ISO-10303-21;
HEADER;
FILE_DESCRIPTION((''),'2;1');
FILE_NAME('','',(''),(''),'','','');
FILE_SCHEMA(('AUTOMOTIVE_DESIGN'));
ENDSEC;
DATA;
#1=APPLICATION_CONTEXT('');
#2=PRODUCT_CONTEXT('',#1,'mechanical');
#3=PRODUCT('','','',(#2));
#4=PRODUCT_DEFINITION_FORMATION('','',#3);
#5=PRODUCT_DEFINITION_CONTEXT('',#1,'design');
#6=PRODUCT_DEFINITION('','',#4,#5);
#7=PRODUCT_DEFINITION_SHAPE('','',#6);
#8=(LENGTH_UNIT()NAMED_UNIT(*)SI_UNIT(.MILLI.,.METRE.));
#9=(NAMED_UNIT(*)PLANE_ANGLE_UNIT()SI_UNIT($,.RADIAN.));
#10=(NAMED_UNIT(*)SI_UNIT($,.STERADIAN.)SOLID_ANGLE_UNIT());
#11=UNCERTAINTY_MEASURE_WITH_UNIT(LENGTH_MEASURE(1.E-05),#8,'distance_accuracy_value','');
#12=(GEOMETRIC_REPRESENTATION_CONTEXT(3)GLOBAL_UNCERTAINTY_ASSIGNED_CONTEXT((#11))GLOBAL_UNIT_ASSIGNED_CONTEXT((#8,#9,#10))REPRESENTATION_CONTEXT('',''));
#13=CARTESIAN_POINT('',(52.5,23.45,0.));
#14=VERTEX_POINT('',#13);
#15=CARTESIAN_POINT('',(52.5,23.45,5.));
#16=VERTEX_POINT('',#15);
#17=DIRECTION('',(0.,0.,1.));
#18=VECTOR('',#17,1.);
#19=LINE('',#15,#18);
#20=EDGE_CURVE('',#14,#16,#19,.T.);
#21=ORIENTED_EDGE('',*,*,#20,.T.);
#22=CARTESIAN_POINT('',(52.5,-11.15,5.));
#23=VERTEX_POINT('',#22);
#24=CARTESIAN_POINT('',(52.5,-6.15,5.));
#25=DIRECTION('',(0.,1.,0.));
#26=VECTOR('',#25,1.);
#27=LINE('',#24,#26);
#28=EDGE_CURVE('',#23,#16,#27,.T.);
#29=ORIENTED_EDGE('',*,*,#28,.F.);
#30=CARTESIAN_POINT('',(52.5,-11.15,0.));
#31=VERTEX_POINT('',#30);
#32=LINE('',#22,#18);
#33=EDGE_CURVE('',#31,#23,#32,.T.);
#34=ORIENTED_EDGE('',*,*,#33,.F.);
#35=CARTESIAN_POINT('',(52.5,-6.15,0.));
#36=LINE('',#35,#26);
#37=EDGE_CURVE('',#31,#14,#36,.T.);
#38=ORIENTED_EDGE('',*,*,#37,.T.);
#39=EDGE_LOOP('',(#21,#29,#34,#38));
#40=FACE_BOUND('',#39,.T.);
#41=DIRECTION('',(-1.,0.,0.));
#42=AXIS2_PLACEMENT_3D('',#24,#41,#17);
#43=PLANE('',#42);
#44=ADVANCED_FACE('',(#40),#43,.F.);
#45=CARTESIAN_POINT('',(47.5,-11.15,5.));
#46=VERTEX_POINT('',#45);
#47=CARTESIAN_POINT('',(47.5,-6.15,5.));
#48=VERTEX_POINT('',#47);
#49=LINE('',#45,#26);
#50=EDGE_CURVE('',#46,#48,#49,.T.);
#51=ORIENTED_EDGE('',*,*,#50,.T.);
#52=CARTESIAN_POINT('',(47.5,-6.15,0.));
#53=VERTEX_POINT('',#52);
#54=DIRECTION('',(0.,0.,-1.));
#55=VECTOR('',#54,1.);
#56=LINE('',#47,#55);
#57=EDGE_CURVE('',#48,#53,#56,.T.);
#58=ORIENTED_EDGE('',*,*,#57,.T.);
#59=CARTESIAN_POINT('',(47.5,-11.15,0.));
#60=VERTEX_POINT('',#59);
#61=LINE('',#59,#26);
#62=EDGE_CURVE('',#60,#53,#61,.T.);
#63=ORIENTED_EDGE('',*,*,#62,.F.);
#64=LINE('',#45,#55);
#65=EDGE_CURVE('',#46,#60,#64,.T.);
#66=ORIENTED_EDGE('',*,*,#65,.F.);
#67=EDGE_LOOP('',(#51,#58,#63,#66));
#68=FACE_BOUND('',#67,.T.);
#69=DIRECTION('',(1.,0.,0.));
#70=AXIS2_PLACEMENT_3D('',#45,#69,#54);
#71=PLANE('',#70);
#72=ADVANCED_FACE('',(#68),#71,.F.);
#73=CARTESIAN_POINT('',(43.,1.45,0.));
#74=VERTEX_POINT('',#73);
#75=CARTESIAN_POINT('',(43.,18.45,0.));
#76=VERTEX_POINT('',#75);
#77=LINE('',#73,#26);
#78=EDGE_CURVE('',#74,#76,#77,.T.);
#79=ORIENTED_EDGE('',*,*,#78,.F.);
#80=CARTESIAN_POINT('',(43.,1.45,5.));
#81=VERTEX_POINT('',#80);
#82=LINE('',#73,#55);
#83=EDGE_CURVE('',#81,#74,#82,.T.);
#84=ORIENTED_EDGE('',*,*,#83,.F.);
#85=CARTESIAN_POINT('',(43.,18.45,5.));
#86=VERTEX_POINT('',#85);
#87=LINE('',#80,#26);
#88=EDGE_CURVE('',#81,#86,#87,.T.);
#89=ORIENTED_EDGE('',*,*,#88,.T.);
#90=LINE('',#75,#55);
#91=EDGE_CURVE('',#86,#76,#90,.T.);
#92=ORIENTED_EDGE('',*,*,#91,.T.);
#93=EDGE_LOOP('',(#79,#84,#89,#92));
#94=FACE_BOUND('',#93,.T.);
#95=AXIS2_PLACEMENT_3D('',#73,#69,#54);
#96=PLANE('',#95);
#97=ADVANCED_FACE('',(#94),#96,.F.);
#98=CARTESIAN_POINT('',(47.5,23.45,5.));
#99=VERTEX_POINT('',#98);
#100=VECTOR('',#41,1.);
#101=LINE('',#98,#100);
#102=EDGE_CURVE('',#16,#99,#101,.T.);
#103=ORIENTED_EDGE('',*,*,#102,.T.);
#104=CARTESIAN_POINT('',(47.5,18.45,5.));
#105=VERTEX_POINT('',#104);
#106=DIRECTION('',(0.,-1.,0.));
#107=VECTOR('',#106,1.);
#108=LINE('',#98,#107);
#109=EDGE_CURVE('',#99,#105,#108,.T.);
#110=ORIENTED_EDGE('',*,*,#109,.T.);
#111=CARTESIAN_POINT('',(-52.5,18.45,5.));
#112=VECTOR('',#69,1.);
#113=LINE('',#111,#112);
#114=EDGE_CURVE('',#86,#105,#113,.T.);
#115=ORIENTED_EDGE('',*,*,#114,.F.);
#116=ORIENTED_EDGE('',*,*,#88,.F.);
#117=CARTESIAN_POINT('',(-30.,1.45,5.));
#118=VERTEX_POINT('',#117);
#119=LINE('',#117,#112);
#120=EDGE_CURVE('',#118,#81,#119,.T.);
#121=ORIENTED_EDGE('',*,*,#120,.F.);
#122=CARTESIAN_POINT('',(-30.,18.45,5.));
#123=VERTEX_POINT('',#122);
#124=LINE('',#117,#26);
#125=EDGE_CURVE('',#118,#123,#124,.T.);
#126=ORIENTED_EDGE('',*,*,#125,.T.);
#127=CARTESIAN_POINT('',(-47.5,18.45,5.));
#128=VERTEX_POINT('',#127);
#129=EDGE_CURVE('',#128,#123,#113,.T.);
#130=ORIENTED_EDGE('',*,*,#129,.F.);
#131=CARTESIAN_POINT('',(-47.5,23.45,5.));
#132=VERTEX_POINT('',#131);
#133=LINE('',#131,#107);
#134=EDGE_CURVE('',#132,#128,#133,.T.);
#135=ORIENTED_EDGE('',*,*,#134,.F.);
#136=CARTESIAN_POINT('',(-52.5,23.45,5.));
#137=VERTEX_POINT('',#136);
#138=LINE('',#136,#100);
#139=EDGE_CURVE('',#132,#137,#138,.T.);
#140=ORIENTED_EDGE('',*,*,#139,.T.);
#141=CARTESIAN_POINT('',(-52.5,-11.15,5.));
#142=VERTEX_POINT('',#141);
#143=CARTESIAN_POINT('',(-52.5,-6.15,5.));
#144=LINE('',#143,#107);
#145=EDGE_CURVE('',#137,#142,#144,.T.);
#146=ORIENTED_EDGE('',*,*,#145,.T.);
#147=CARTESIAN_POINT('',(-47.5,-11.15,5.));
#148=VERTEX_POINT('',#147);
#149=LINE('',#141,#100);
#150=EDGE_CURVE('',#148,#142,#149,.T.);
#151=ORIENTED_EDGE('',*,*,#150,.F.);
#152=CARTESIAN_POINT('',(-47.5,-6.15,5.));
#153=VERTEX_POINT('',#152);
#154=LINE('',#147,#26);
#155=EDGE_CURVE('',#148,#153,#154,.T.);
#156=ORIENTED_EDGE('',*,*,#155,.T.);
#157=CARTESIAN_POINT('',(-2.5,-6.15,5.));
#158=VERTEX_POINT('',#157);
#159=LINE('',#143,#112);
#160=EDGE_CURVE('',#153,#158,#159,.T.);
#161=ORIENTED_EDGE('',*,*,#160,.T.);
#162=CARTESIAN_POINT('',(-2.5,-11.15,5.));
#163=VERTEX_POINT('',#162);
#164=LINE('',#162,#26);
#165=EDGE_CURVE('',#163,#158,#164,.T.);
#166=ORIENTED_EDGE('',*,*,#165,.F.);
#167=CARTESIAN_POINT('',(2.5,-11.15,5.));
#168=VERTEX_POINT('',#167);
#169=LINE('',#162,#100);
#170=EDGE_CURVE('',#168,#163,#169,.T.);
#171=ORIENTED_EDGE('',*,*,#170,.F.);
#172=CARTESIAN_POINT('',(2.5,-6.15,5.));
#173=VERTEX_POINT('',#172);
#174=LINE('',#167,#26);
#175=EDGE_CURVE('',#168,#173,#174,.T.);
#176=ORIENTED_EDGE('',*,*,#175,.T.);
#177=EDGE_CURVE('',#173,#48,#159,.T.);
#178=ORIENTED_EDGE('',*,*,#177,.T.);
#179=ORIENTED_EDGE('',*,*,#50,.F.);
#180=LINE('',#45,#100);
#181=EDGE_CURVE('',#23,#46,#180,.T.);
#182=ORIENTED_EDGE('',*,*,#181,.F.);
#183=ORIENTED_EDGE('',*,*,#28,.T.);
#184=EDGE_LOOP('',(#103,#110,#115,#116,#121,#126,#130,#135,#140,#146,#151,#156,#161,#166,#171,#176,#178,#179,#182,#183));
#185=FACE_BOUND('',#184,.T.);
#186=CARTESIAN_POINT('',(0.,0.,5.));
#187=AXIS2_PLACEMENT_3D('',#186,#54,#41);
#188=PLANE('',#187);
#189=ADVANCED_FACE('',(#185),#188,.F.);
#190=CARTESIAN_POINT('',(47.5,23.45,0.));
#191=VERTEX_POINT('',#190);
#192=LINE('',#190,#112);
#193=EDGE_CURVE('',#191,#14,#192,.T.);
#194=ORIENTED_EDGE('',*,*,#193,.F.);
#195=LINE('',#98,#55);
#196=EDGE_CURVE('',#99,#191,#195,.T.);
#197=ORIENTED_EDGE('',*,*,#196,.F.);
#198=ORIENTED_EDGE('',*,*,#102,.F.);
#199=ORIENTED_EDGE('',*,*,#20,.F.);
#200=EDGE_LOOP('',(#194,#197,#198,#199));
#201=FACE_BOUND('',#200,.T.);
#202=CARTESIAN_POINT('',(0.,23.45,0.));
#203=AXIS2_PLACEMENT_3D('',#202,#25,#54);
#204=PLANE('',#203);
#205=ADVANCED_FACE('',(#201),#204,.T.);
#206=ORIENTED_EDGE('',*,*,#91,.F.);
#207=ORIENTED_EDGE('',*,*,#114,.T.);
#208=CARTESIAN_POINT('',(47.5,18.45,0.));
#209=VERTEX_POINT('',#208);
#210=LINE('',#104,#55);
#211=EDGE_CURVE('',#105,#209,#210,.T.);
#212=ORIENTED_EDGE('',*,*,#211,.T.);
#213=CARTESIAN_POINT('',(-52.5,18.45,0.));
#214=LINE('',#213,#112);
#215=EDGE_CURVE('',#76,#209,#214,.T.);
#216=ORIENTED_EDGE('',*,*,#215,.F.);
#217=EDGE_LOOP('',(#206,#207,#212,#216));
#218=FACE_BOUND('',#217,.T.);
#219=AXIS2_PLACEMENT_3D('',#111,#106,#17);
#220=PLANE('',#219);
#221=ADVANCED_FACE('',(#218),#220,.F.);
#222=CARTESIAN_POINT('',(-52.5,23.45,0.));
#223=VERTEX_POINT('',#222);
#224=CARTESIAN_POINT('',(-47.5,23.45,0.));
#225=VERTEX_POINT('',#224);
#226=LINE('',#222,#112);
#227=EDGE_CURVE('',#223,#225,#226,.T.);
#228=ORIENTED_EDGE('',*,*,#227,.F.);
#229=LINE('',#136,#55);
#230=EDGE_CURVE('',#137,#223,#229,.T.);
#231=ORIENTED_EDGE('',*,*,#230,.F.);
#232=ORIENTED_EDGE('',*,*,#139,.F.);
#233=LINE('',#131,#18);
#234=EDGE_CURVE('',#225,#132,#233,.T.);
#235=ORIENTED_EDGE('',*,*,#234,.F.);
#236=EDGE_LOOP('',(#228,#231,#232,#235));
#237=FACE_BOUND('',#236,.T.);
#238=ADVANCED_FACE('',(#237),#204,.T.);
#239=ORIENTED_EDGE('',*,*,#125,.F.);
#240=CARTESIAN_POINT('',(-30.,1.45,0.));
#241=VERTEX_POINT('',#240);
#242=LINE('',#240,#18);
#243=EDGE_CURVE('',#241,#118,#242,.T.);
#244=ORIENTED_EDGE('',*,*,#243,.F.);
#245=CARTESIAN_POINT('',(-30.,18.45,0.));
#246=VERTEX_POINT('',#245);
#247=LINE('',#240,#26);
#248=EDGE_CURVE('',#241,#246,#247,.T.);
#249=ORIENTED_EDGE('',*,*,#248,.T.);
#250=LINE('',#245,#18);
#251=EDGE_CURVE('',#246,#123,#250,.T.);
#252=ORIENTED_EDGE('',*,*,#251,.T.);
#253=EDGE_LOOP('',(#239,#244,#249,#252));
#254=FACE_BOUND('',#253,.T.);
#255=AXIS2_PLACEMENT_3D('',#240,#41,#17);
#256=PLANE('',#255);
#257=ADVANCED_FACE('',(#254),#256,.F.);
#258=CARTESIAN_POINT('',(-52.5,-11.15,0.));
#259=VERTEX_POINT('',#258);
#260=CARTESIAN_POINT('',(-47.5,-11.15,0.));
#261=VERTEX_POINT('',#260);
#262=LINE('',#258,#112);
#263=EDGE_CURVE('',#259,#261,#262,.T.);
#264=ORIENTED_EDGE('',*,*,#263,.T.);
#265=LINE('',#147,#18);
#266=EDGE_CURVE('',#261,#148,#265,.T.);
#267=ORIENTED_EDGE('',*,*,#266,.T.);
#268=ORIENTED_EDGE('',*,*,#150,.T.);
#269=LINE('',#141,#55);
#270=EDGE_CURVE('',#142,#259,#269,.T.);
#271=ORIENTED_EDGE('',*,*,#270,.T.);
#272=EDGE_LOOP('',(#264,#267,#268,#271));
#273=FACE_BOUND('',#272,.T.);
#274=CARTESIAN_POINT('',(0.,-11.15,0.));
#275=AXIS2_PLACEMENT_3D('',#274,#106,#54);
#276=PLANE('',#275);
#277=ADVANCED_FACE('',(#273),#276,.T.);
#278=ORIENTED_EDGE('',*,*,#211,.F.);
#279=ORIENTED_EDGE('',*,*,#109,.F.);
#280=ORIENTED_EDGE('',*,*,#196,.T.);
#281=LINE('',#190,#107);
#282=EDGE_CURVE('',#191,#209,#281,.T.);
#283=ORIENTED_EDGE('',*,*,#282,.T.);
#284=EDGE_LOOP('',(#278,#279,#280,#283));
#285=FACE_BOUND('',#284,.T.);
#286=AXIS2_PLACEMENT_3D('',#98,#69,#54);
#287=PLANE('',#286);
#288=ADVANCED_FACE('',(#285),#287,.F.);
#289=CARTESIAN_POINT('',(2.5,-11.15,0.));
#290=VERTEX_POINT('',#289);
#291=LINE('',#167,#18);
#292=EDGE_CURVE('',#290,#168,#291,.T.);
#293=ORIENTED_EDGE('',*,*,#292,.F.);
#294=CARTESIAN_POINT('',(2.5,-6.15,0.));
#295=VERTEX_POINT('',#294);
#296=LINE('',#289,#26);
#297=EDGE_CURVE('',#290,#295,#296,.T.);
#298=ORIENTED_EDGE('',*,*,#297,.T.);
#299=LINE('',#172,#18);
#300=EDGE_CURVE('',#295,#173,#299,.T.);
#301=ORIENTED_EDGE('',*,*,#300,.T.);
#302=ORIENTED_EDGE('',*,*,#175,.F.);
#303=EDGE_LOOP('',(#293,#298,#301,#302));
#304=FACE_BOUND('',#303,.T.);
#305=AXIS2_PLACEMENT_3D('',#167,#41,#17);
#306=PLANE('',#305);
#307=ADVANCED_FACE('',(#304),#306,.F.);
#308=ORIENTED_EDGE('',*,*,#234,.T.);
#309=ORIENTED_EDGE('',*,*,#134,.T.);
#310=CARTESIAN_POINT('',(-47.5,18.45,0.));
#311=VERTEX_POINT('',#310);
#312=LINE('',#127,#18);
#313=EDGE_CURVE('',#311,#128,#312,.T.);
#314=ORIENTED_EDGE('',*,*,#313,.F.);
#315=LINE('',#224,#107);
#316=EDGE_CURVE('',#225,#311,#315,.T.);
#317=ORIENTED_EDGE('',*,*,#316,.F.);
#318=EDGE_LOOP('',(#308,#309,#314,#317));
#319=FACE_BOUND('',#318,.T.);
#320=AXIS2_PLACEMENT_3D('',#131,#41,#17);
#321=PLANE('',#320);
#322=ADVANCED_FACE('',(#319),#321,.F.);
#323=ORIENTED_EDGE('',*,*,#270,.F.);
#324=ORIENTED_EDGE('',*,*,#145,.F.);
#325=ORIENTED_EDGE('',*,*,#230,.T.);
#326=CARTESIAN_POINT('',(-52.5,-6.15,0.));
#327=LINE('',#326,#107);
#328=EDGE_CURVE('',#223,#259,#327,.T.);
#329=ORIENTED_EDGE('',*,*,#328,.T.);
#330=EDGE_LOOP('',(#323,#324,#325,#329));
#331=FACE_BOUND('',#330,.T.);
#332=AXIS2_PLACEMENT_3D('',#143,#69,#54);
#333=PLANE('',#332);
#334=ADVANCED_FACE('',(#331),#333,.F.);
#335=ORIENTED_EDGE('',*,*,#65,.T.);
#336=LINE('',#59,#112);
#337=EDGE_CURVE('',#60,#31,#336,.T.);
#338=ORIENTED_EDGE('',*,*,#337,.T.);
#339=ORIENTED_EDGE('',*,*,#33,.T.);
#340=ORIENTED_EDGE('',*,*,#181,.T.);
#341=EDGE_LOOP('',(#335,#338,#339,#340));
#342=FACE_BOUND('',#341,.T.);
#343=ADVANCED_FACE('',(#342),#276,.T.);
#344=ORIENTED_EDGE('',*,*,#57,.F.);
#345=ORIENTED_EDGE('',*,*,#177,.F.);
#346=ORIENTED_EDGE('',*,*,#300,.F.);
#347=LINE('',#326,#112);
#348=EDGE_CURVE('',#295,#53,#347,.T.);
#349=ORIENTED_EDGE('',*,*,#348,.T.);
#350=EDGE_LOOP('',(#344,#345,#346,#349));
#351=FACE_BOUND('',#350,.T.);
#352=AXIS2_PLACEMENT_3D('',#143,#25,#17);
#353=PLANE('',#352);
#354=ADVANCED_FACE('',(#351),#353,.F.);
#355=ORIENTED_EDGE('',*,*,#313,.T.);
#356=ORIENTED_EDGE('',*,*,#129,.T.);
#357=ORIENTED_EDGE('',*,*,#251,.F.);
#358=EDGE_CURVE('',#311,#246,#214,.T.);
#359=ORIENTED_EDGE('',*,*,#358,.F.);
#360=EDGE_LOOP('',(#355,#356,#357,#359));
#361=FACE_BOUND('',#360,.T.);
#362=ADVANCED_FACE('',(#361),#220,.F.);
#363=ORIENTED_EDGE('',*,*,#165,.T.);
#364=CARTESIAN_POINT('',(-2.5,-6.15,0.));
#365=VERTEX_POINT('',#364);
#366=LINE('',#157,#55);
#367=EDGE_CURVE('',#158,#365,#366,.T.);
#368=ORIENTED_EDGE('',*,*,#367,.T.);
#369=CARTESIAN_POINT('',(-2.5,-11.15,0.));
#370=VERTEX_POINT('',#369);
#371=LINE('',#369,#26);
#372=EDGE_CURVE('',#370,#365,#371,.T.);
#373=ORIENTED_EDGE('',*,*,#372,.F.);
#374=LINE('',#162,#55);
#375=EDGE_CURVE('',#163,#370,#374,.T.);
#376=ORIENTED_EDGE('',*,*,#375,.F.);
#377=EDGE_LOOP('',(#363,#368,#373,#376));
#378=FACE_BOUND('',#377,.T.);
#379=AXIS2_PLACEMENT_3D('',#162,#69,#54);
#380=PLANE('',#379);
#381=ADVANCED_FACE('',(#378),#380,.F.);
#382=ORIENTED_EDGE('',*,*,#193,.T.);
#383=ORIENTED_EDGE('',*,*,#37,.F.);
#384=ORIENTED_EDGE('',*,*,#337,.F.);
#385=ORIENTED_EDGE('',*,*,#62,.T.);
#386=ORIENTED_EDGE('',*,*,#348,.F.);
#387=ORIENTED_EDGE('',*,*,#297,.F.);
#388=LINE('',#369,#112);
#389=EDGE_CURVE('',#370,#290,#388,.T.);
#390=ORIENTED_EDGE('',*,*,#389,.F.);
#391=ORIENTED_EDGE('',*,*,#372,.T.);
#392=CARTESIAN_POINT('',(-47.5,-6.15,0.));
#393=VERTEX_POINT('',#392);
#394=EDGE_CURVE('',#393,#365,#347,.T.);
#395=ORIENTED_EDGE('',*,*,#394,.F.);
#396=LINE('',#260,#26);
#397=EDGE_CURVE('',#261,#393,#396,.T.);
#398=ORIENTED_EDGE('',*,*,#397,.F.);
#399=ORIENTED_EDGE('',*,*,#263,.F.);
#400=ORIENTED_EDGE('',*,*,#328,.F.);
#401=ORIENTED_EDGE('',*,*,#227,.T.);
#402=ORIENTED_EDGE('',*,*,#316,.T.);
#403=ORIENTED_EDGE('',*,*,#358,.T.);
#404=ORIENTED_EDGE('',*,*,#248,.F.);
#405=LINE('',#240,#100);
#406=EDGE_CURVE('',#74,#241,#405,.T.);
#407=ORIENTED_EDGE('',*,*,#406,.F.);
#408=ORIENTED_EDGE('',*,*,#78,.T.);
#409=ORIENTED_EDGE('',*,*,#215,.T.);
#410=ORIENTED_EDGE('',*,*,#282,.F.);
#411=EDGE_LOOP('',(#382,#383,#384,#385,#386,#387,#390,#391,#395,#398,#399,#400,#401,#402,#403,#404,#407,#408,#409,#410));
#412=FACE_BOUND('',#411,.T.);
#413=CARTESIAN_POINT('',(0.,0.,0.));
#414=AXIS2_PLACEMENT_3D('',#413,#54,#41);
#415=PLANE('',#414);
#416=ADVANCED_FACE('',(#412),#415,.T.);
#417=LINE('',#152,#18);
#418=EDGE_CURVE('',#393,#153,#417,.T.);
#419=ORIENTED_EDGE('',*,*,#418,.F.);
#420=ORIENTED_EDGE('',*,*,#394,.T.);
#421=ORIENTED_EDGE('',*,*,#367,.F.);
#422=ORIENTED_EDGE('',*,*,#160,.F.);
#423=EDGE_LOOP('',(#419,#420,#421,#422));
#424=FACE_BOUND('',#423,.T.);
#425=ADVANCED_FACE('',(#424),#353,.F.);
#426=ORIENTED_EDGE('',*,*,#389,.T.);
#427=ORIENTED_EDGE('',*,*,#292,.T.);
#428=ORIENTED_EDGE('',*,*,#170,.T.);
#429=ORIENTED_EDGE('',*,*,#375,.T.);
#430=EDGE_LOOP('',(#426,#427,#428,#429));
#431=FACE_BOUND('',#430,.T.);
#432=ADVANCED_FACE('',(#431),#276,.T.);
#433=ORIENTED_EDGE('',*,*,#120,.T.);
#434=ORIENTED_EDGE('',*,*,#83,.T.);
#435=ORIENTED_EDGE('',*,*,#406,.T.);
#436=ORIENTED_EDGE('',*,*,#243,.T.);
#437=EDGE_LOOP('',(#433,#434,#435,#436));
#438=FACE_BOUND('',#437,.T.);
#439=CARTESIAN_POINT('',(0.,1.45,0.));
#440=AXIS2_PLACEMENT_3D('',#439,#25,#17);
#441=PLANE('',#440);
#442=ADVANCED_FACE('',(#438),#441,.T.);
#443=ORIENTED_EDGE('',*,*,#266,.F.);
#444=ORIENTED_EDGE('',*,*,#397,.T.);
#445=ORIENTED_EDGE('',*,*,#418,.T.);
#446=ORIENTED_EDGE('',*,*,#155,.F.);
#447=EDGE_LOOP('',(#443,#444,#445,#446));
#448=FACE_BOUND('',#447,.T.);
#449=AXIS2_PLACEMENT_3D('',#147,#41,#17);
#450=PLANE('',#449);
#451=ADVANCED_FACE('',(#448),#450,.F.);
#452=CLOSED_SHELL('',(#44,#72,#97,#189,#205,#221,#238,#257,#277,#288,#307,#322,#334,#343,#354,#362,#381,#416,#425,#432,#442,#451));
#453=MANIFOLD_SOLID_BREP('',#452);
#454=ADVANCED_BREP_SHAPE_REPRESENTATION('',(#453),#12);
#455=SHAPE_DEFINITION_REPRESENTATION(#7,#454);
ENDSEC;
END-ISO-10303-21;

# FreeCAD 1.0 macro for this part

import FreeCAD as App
import Part
import Sketcher


def add_polygon(sketch, points):
    """Adds a closed chain of lines whose ends are joined by coincident constraints."""
    first, n = sketch.GeometryCount, len(points)
    for a, b in zip(points, points[1:] + points[:1]):
        sketch.addGeometry(Part.LineSegment(App.Vector(*a, 0), App.Vector(*b, 0)), False)
    for i in range(n):
        sketch.addConstraint(Sketcher.Constraint("Coincident", first + i, 2, first + (i + 1) % n, 1))

doc = App.newDocument("Part")
body = doc.addObject("PartDesign::Body", "Body")

# Sketch on XY plane
sketch1 = body.newObject("Sketcher::SketchObject", "Sketch")
sketch1.AttachmentSupport = (doc.getObject("XY_Plane"), [""])
sketch1.MapMode = "FlatFace"
add_polygon(sketch1, [(-52, 6), (-52, -6), (52, -6), (52, 6)])  # lines 0-3
sketch1.addConstraint([
    Sketcher.Constraint("Vertical", 0),
    Sketcher.Constraint("Horizontal", 1),
    Sketcher.Constraint("Vertical", 2),
    Sketcher.Constraint("Horizontal", 3),
    Sketcher.Constraint("Symmetric", 0, 2, 2, 2, -1, 1),
    Sketcher.Constraint("DistanceX", 1, 1, 1, 2, 105.0),
    Sketcher.Constraint("DistanceY", 0, 2, 0, 1, 12.3),
])
pad1 = body.newObject("PartDesign::Pad", "Pad")
pad1.Profile = sketch1
pad1.Length = 5

# Sketch on XZ plane
sketch2 = body.newObject("Sketcher::SketchObject", "Sketch001")
sketch2.AttachmentSupport = (doc.getObject("XZ_Plane"), [""])
sketch2.MapMode = "FlatFace"
sketch2.AttachmentOffset = App.Placement(App.Vector(0, 0, 6.15), App.Rotation())
add_polygon(sketch2, [(-52, 5), (-52, 0), (-48, 0), (-48, 5)])  # lines 0-3
add_polygon(sketch2, [(48, 5), (48, 0), (52, 0), (52, 5)])  # lines 4-7
sketch2.addConstraint([
    Sketcher.Constraint("Vertical", 0),
    Sketcher.Constraint("Horizontal", 1),
    Sketcher.Constraint("Vertical", 2),
    Sketcher.Constraint("Horizontal", 3),
    Sketcher.Constraint("Vertical", 4),
    Sketcher.Constraint("Horizontal", 5),
    Sketcher.Constraint("Vertical", 6),
    Sketcher.Constraint("Horizontal", 7),
    Sketcher.Constraint("Symmetric", 1, 2, 4, 2, -1, 1),
    Sketcher.Constraint("Symmetric", 0, 2, 5, 2, -2),
    Sketcher.Constraint("Horizontal", 3, 2, 6, 2),
    Sketcher.Constraint("Equal", 7, 0),
    Sketcher.Constraint("DistanceX", 1, 1, 1, 2, 5.0),
    Sketcher.Constraint("DistanceX", 1, 2, 4, 2, 95.0),
])
pad2 = body.newObject("PartDesign::Pad", "Pad001")
pad2.Profile = sketch2
pad2.Length = 5
body2 = doc.addObject("PartDesign::Body", "Body001")
doc.recompute()

body2.BaseFeature = body
doc.recompute()

mirroring = doc.addObject("Part::Mirroring", "Mirroring")
mirroring.Source = body
mirroring.Base = App.Vector(-52.5, 6.15, 5)
mirroring.Normal = App.Vector(0, -1, 0)
body3 = doc.addObject("PartDesign::Body", "Body002")
body3.BaseFeature = mirroring
boolean = body2.newObject("PartDesign::Boolean", "Boolean")
boolean.Type = "Fuse"
boolean.addObjects([body3])
doc.recompute()

# Sketch on XZ plane
sketch3 = body2.newObject("Sketcher::SketchObject", "Sketch002")
sketch3.AttachmentSupport = (doc.getObject("XZ_Plane001"), [""])
sketch3.MapMode = "FlatFace"
sketch3.AttachmentOffset = App.Placement(App.Vector(0, 0, -18.45), App.Rotation())
add_polygon(sketch3, [(-30, 0), (-30, 5), (43, 5), (43, 0)])  # lines 0-3
sketch3.addConstraint([
    Sketcher.Constraint("Vertical", 0),
    Sketcher.Constraint("Horizontal", 1),
    Sketcher.Constraint("Vertical", 2),
    Sketcher.Constraint("Horizontal", 3),
    Sketcher.Constraint("PointOnObject", 2, 2, -1),
    Sketcher.Constraint("DistanceX", 1, 1, 1, 2, 73.0),
    Sketcher.Constraint("DistanceY", 0, 1, 0, 2, 5.0),
    Sketcher.Constraint("DistanceX", 0, 2, -1, 1, 30.0),
])
pocket1 = body2.newObject("PartDesign::Pocket", "Pocket")
pocket1.Profile = sketch3
pocket1.Length = 17
pocket1.Reversed = True

# Sketch on XZ plane
sketch4 = body2.newObject("Sketcher::SketchObject", "Sketch003")
sketch4.AttachmentSupport = (doc.getObject("XZ_Plane001"), [""])
sketch4.MapMode = "FlatFace"
sketch4.AttachmentOffset = App.Placement(App.Vector(0, 0, 6.15), App.Rotation())
add_polygon(sketch4, [(-2, 5), (-2, 0), (2, 0), (2, 5)])  # lines 0-3
sketch4.addConstraint([
    Sketcher.Constraint("Vertical", 0),
    Sketcher.Constraint("Horizontal", 1),
    Sketcher.Constraint("Vertical", 2),
    Sketcher.Constraint("Horizontal", 3),
    Sketcher.Constraint("Symmetric", 0, 2, 1, 2, -1, 1),
    Sketcher.Constraint("Equal", 3, 0),
    Sketcher.Constraint("DistanceX", 1, 1, 1, 2, 5.0),
])
pad3 = body2.newObject("PartDesign::Pad", "Pad002")
pad3.Profile = sketch4
pad3.Length = 5
mirroring.Visibility = False

doc.recompute()
